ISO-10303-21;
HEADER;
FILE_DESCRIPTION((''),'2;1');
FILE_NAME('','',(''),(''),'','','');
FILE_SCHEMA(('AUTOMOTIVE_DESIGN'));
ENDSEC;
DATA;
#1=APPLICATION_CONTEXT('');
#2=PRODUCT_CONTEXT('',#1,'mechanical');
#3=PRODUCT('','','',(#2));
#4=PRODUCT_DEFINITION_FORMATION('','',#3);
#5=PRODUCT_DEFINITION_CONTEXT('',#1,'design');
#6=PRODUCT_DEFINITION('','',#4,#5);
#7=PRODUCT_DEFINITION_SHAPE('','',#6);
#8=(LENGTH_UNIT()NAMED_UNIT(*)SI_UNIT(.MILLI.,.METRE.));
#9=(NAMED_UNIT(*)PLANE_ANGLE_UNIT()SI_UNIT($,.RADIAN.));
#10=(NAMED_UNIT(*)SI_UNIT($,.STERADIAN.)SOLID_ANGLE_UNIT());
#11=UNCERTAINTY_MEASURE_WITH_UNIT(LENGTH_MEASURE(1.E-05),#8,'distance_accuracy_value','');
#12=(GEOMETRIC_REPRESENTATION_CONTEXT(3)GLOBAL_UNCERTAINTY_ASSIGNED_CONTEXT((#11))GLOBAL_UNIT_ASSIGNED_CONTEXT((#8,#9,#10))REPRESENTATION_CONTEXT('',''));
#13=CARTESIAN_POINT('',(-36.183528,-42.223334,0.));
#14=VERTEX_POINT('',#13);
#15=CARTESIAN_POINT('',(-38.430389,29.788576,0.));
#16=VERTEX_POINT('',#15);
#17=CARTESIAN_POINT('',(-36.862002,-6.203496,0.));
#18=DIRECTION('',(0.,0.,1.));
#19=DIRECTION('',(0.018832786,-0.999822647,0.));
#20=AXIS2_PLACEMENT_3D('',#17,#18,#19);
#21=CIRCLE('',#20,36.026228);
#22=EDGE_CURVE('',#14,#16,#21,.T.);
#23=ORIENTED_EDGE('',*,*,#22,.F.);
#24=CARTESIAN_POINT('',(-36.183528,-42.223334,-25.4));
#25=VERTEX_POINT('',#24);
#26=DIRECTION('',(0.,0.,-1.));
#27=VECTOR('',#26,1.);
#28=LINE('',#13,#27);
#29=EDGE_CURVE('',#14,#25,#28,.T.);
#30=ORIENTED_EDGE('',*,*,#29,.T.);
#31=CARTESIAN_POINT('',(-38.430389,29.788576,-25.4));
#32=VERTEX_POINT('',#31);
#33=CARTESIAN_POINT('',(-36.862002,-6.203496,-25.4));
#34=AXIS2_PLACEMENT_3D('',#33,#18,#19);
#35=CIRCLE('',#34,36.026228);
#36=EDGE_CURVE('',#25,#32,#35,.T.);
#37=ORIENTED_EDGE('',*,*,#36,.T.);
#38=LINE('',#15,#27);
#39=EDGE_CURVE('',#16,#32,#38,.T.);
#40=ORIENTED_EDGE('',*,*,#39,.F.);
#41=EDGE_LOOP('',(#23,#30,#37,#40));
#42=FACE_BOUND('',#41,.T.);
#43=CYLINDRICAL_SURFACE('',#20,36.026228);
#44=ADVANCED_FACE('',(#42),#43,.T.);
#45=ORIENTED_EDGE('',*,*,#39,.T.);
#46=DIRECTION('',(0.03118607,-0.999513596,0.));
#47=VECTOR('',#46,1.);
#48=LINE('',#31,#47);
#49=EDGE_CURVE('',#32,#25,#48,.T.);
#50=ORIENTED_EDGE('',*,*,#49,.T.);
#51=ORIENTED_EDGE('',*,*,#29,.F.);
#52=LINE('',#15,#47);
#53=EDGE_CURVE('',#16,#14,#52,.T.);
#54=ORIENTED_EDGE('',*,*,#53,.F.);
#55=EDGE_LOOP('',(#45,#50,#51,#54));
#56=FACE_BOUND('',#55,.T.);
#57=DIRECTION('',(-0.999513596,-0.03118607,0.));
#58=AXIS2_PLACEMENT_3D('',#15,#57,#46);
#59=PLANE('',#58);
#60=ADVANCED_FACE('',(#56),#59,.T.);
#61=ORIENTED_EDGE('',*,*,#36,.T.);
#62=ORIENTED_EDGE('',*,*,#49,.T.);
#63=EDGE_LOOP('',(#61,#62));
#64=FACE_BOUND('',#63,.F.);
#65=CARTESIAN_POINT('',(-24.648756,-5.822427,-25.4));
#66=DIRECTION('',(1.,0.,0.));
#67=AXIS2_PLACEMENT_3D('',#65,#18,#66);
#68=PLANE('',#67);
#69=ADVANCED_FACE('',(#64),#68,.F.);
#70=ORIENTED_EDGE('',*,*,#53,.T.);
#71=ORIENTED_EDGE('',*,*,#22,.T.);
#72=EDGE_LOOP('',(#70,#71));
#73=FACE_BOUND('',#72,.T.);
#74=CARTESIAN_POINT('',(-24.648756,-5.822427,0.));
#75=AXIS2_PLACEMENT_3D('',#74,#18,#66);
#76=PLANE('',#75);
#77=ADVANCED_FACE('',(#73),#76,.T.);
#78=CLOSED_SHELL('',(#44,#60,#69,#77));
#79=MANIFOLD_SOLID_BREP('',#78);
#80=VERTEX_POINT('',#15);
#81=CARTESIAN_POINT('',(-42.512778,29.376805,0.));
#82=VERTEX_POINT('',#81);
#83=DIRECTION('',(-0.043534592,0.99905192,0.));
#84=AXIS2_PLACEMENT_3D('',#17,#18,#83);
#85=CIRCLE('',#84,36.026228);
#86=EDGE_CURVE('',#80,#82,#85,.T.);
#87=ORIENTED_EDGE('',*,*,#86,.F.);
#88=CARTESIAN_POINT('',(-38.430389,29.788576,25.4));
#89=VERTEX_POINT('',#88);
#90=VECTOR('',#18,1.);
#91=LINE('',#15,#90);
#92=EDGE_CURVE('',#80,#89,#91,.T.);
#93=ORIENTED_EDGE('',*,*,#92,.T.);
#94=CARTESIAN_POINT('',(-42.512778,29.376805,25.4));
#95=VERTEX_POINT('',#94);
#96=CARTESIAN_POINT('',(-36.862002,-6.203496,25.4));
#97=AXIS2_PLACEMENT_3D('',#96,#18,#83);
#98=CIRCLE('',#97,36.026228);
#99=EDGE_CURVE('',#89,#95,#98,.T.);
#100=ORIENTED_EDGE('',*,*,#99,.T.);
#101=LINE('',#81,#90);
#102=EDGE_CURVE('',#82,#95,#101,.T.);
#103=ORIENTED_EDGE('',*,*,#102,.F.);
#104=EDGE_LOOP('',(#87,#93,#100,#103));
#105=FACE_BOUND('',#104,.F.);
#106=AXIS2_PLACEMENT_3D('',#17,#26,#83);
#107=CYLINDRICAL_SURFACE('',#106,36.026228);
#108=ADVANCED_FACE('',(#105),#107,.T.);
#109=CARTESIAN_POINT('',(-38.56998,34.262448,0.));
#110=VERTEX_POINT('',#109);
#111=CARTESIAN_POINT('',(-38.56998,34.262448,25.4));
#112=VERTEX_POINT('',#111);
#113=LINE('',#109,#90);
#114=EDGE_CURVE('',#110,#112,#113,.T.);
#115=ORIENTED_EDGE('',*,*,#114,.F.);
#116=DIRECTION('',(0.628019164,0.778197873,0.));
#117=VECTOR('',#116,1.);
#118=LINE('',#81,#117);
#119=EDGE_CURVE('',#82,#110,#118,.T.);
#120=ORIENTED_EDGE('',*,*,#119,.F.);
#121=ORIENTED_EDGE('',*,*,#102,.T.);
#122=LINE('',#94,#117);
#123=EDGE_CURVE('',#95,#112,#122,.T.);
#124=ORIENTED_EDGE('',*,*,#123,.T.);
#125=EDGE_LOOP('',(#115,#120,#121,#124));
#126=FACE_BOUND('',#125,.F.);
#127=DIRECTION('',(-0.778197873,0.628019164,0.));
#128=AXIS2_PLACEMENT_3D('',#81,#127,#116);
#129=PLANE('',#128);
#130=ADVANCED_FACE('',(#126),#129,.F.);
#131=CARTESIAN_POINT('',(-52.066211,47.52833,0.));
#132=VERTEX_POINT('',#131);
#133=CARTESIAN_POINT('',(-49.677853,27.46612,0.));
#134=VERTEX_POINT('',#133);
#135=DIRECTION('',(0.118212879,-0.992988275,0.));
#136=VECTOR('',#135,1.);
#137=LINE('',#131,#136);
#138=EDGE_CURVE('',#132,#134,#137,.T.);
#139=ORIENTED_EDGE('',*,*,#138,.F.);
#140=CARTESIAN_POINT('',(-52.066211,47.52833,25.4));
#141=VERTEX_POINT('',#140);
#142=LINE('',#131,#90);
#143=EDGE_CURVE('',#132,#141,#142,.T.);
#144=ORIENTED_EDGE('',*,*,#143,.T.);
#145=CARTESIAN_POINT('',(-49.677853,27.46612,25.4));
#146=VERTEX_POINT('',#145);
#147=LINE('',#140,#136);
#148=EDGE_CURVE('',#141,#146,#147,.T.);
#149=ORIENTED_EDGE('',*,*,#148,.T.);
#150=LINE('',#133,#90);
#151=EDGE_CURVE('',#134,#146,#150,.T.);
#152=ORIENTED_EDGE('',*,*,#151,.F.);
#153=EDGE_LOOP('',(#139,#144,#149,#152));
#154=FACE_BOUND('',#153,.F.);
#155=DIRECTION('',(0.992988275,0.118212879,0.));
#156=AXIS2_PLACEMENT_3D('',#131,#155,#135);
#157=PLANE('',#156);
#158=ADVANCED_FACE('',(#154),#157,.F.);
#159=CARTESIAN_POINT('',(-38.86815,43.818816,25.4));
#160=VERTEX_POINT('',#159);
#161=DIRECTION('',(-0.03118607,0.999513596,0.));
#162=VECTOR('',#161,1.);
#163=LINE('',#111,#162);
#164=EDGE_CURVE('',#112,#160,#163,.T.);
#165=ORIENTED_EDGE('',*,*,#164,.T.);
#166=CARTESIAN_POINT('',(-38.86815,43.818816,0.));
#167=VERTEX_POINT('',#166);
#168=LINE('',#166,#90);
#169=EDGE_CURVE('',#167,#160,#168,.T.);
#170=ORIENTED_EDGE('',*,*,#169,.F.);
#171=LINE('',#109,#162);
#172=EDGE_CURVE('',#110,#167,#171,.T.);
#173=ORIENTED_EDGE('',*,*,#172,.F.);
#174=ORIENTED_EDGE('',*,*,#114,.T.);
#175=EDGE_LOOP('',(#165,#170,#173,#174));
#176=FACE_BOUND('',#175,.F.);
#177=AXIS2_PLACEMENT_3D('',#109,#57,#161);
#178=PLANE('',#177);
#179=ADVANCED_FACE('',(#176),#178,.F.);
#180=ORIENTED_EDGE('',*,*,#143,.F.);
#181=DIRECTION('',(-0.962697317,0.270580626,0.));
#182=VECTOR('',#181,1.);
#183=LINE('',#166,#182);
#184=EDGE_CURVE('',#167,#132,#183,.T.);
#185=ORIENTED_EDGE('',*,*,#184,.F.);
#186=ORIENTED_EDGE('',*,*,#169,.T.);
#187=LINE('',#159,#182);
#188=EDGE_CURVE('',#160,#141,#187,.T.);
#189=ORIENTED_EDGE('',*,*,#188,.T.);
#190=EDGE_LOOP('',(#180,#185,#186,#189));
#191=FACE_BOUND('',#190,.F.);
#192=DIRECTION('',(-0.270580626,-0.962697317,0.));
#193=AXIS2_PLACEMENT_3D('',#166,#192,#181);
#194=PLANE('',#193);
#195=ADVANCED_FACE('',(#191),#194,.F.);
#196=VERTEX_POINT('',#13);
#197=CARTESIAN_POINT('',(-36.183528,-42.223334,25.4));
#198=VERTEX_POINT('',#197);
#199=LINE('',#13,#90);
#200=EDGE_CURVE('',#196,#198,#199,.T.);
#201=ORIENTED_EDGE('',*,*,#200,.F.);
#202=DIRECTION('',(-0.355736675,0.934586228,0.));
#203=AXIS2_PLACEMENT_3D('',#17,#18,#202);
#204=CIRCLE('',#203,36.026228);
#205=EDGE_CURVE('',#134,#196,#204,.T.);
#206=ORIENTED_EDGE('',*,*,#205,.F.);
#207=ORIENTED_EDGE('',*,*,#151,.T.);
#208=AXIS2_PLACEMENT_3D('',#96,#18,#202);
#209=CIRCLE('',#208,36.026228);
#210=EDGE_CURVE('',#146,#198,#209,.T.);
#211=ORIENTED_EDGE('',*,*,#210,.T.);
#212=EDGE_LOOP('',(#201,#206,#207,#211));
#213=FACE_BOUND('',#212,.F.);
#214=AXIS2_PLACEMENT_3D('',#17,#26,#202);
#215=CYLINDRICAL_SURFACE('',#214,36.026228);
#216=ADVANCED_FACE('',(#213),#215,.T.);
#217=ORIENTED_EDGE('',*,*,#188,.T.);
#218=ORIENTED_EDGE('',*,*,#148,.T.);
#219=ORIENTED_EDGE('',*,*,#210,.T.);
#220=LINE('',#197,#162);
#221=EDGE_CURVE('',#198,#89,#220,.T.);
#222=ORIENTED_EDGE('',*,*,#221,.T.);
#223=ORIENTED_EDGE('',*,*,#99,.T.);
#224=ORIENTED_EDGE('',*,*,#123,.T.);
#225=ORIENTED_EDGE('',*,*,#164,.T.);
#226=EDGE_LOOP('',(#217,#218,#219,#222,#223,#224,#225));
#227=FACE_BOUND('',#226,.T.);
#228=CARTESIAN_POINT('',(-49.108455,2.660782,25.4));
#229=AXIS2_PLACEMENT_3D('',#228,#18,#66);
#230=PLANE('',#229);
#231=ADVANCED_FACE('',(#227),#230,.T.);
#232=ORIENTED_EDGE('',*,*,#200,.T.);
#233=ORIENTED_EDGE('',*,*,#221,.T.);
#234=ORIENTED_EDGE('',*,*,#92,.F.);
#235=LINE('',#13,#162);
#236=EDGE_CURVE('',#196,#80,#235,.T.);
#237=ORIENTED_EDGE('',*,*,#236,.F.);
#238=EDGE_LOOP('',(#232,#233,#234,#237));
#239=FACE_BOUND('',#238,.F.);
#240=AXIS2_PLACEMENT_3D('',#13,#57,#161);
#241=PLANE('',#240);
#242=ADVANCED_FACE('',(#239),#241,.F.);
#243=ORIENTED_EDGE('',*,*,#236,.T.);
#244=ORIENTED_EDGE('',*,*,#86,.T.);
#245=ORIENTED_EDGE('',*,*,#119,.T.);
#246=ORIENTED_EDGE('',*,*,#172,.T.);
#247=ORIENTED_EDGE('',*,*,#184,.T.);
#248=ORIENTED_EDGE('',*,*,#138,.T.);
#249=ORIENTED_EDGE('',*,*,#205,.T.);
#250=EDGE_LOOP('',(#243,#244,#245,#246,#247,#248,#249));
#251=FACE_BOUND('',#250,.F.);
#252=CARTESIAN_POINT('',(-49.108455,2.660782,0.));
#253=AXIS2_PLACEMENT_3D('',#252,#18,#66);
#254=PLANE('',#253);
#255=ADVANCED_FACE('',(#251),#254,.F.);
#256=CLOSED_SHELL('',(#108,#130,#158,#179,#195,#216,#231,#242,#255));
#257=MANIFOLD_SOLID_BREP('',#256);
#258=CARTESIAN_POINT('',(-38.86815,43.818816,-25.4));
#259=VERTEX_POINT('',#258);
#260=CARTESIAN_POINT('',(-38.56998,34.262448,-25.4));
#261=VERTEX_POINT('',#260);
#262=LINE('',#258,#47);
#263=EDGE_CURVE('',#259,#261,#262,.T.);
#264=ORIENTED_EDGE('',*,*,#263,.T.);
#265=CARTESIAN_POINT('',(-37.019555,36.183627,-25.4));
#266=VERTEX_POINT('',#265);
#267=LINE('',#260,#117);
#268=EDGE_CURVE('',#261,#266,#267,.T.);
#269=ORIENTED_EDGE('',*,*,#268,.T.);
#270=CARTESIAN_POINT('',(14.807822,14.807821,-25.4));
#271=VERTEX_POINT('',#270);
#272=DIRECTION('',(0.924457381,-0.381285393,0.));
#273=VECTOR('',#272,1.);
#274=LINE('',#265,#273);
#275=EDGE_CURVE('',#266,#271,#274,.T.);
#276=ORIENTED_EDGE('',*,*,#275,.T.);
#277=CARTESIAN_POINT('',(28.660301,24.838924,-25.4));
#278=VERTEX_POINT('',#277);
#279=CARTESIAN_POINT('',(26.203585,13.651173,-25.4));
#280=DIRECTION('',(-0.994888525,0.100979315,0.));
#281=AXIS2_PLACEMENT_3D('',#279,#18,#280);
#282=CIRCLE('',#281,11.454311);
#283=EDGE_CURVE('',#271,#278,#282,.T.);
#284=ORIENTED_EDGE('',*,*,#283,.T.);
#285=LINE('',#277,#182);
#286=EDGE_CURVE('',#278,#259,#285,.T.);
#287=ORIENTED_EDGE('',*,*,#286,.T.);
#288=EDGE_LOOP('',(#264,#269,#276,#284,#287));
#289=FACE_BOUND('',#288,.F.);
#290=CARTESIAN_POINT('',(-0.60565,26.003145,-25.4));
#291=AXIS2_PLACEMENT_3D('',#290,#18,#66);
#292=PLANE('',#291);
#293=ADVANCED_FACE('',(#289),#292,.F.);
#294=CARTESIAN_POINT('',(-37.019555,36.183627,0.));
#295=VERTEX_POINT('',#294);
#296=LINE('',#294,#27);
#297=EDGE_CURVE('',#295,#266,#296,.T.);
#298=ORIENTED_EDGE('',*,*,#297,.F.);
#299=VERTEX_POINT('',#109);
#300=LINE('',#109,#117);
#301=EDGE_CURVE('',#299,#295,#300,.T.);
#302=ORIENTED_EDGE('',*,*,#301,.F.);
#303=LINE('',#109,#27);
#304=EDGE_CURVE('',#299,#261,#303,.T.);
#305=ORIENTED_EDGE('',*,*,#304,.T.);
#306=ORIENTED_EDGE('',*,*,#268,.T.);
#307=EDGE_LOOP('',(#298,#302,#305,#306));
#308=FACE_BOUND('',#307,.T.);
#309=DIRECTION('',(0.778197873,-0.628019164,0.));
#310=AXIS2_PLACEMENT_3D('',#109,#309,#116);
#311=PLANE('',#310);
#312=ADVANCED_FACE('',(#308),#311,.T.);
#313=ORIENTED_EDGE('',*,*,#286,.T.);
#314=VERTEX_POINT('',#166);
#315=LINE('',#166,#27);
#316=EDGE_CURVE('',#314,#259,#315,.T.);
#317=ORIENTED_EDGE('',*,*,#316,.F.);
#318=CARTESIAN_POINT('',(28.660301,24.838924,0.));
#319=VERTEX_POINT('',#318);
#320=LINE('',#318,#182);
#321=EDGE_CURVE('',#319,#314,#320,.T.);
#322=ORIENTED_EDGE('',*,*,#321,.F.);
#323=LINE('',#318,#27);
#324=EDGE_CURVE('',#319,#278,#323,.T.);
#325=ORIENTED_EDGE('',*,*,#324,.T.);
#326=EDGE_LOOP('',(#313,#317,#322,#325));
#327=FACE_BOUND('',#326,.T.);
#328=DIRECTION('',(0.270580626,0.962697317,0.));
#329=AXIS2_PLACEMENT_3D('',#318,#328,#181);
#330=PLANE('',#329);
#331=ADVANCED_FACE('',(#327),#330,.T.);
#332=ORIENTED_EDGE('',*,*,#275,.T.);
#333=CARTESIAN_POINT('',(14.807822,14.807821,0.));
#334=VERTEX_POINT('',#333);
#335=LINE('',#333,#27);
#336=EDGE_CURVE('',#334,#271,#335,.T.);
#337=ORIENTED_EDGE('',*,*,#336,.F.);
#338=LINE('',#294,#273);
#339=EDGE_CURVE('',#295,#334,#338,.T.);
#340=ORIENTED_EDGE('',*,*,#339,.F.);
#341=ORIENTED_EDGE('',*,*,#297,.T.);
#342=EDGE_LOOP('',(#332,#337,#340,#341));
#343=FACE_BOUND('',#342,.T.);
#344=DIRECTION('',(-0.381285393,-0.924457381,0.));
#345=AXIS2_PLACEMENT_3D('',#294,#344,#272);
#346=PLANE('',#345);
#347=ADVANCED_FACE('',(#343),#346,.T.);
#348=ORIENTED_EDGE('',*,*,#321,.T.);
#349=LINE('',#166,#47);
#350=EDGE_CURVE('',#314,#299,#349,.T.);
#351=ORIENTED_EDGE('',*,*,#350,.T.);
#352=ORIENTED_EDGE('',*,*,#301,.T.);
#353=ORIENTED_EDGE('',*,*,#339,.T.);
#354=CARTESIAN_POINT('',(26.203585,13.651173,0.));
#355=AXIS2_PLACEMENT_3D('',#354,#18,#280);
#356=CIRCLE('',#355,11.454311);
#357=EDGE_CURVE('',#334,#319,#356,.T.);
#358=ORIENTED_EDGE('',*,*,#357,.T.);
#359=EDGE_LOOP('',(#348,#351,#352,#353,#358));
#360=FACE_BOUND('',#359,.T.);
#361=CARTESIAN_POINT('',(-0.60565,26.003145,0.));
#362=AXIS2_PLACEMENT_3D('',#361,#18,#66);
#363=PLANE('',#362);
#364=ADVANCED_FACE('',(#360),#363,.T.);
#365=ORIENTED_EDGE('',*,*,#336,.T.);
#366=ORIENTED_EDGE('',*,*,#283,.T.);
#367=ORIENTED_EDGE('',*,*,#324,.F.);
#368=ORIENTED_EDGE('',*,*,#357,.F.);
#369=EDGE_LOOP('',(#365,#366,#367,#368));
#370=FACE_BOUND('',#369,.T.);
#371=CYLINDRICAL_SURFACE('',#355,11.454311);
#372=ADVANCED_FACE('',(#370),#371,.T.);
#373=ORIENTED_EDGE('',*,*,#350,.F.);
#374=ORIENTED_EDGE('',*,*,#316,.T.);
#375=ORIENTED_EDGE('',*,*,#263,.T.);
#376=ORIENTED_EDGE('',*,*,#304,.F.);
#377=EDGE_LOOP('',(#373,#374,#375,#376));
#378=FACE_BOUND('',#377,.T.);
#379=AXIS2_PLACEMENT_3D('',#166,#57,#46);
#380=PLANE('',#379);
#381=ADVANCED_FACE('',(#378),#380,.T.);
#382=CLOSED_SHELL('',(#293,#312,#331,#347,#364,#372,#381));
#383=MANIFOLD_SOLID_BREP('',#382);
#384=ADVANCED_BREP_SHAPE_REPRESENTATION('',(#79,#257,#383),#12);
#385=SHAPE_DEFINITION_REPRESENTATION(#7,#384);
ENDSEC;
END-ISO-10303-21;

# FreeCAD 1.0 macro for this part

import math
import FreeCAD as App
import Part
import Sketcher
Q = App.Units.Quantity

doc = App.newDocument("Part")
body = doc.addObject("PartDesign::Body", "Body")

# Sketch on XY plane
sketch1 = body.newObject("Sketcher::SketchObject", "Sketch")
sketch1.AttachmentSupport = (doc.getObject("XY_Plane"), [""])
sketch1.MapMode = "FlatFace"
sketch1.addGeometry([
    Part.LineSegment(App.Vector(-52.066211, 47.52833, 0), App.Vector(-49.677853, 27.46612, 0)),  # 0
    Part.ArcOfCircle(Part.Circle(App.Vector(-36.862002, -6.203496, 0), App.Vector(0, 0, 1), 36.026228), math.radians(110.8386), math.radians(271.079103)),  # 1
    Part.LineSegment(App.Vector(-36.183528, -42.223334, 0), App.Vector(-38.430389, 29.788576, 0)),  # 2
    Part.ArcOfCircle(Part.Circle(App.Vector(-36.862002, -6.203496, 0), App.Vector(0, 0, 1), 36.026228), math.radians(92.495137), math.radians(99.024206)),  # 3
    Part.LineSegment(App.Vector(-42.512778, 29.376805, 0), App.Vector(-38.56998, 34.262448, 0)),  # 4
    Part.LineSegment(App.Vector(-38.56998, 34.262448, 0), App.Vector(-38.86815, 43.818816, 0)),  # 5
    Part.LineSegment(App.Vector(-38.86815, 43.818816, 0), App.Vector(-52.066211, 47.52833, 0)),  # 6
], False)
sketch1.addConstraint([
    Sketcher.Constraint("Coincident", 0, 2, 1, 1),
    Sketcher.Constraint("Coincident", 1, 2, 2, 1),
    Sketcher.Constraint("Coincident", 2, 2, 3, 1),
    Sketcher.Constraint("Coincident", 3, 2, 4, 1),
    Sketcher.Constraint("Coincident", 4, 2, 5, 1),
    Sketcher.Constraint("Coincident", 5, 2, 6, 1),
    Sketcher.Constraint("Coincident", 6, 2, 0, 1),
    Sketcher.Constraint("Coincident", 3, 3, 1, 3),
    Sketcher.Constraint("Equal", 1, 3),
    Sketcher.Constraint("Parallel", 2, 5),
    Sketcher.Constraint("Radius", 1, Q("36.026228 mm")),
    Sketcher.Constraint("DistanceY", 1, 3, 3, 2, Q("35.580301 mm")),
    Sketcher.Constraint("DistanceX", 3, 2, 4, 2, Q("3.942799 mm")),
    Sketcher.Constraint("Distance", 4, Q("6.27815 mm")),
    Sketcher.Constraint("Distance", 5, Q("9.561019 mm")),
    Sketcher.Constraint("Distance", 6, Q("13.70946 mm")),
    Sketcher.Constraint("DistanceY", -1, 1, 0, 2, Q("27.46612 mm")),
    Sketcher.Constraint("DistanceX", 2, 2, -1, 1, Q("38.430389 mm")),
    Sketcher.Constraint("DistanceX", 3, 2, -1, 1, Q("42.512778 mm")),
    Sketcher.Constraint("DistanceX", 5, 2, -1, 1, Q("38.86815 mm")),
    Sketcher.Constraint("DistanceX", 6, 2, -1, 1, Q("52.066211 mm")),
    Sketcher.Constraint("DistanceY", -1, 1, 6, 2, Q("47.52833 mm")),
])
pad1 = body.newObject("PartDesign::Pad", "Pad")
pad1.Profile = sketch1
pad1.Length = Q("1 in")
body2 = doc.addObject("PartDesign::Body", "Body001")

# Sketch on XY plane
sketch2 = body2.newObject("Sketcher::SketchObject", "Sketch001")
sketch2.AttachmentSupport = (doc.getObject("XY_Plane001"), [""])
sketch2.MapMode = "FlatFace"
sketch2.addGeometry([
    Part.LineSegment(App.Vector(-38.430389, 29.788576, 0), App.Vector(-36.183528, -42.223334, 0)),
    Part.ArcOfCircle(Part.Circle(App.Vector(-36.862002, -6.203496, 0), App.Vector(0, 0, 1), 36.026228), math.radians(-88.920897), math.radians(92.495137)),
], False)
sketch2.addConstraint([
    Sketcher.Constraint("Coincident", 0, 1, 1, 2),
    Sketcher.Constraint("Coincident", 1, 1, 0, 2),
    Sketcher.Constraint("Radius", 1, Q("36.026228 mm")),
    Sketcher.Constraint("DistanceX", 0, 1, -1, 1, Q("38.430389 mm")),
    Sketcher.Constraint("DistanceY", 1, 3, 0, 1, Q("35.992072 mm")),
    Sketcher.Constraint("DistanceY", 1, 1, 1, 3, Q("36.019838 mm")),
    Sketcher.Constraint("DistanceY", 1, 3, -1, 1, Q("6.203496 mm")),
])
pad2 = body2.newObject("PartDesign::Pad", "Pad001")
pad2.Profile = sketch2
pad2.Length = Q("1 in")
pad2.Reversed = True
body3 = doc.addObject("PartDesign::Body", "Body002")

# Sketch on XY plane
sketch3 = body3.newObject("Sketcher::SketchObject", "Sketch002")
sketch3.AttachmentSupport = (doc.getObject("XY_Plane002"), [""])
sketch3.MapMode = "FlatFace"
sketch3.addGeometry([
    Part.LineSegment(App.Vector(28.660301, 24.838924, 0), App.Vector(-38.86815, 43.818816, 0)),  # 0
    Part.LineSegment(App.Vector(-38.86815, 43.818816, 0), App.Vector(-38.56998, 34.262448, 0)),  # 1
    Part.LineSegment(App.Vector(-38.56998, 34.262448, 0), App.Vector(-37.019555, 36.183627, 0)),  # 2
    Part.LineSegment(App.Vector(-37.019555, 36.183627, 0), App.Vector(14.807822, 14.807821, 0)),  # 3
    Part.ArcOfCircle(Part.Circle(App.Vector(26.203585, 13.651173, 0), App.Vector(0, 0, 1), 11.454311), math.radians(174.204433), math.radians(437.615)),  # 4
], False)
sketch3.addConstraint([
    Sketcher.Constraint("Coincident", 0, 2, 1, 1),
    Sketcher.Constraint("Coincident", 1, 2, 2, 1),
    Sketcher.Constraint("Coincident", 2, 2, 3, 1),
    Sketcher.Constraint("Coincident", 3, 2, 4, 1),
    Sketcher.Constraint("Coincident", 4, 2, 0, 1),
    Sketcher.Constraint("Radius", 4, Q("11.454311 mm")),
    Sketcher.Constraint("DistanceX", 2, 2, 4, 3, Q("2.4891 in")),
    Sketcher.Constraint("DistanceX", -1, 1, 4, 2, Q("28.660301 mm")),
    Sketcher.Constraint("DistanceX", 1, 2, 3, 2, Q("53.377802 mm")),
    Sketcher.Constraint("Distance", 0, Q("70.14505 mm")),
    Sketcher.Constraint("Distance", 1, Q("9.561019 mm")),
    Sketcher.Constraint("DistanceX", 0, 2, -1, 1, Q("38.86815 mm")),
    Sketcher.Constraint("DistanceX", 1, 2, -1, 1, Q("38.56998 mm")),
    Sketcher.Constraint("DistanceY", -1, 1, 3, 2, Q("14.807821 mm")),
    Sketcher.Constraint("DistanceY", 1, 2, 2, 2, Q("1.921179 mm")),
    Sketcher.Constraint("DistanceY", 4, 3, 3, 2, Q("1.156648 mm")),
])
pad3 = body3.newObject("PartDesign::Pad", "Pad002")
pad3.Profile = sketch3
pad3.Length = Q("1 in")
pad3.Reversed = True

doc.recompute()
